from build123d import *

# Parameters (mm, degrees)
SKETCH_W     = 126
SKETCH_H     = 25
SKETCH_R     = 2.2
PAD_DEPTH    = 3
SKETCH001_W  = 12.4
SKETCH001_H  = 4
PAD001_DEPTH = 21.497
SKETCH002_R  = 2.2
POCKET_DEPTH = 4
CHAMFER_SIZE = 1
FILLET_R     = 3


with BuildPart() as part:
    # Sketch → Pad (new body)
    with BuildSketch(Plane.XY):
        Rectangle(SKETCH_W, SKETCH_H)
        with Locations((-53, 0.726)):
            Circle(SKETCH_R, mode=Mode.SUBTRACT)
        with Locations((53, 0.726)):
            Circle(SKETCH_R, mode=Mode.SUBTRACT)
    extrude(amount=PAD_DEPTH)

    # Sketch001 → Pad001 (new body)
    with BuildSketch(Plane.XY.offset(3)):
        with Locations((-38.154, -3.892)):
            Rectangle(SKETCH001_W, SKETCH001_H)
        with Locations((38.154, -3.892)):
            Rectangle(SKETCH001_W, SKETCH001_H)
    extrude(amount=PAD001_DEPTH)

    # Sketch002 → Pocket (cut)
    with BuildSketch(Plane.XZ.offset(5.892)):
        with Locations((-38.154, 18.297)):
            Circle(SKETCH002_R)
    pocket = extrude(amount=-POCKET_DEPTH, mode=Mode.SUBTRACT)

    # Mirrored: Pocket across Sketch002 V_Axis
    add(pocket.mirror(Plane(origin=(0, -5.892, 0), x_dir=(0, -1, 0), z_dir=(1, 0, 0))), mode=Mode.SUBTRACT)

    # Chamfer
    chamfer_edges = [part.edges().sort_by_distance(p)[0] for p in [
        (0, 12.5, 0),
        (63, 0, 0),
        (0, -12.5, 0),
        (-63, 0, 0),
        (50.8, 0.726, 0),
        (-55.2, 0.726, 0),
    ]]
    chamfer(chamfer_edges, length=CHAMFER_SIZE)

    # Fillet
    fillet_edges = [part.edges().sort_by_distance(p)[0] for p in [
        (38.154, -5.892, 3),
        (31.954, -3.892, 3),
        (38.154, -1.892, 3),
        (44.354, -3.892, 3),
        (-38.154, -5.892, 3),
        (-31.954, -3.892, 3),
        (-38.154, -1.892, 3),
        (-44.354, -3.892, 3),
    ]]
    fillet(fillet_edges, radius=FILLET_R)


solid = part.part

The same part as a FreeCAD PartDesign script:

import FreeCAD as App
import Part
import Sketcher

V = App.Vector
Q = App.Units.Quantity


def edges_at(feature, points):
    """Names of the edges that pass closest to the given points."""
    edges = feature.Shape.Edges
    near = lambda p: min(range(len(edges)), key=lambda i: edges[i].distToShape(Part.Vertex(*p))[0])
    return sorted({f"Edge{near(p) + 1}" for p in points})


def add_polygon(sketch, points):
    """Adds a closed chain of lines whose ends are joined by coincident constraints."""
    first, n = sketch.GeometryCount, len(points)
    for a, b in zip(points, points[1:] + points[:1]):
        sketch.addGeometry(Part.LineSegment(App.Vector(*a, 0), App.Vector(*b, 0)), False)
    for i in range(n):
        sketch.addConstraint(Sketcher.Constraint("Coincident", first + i, 2, first + (i + 1) % n, 1))

doc = App.newDocument("Part")
body = doc.addObject("PartDesign::Body", "Body")

# Sketch on XY plane
sketch1 = body.newObject("Sketcher::SketchObject", "Sketch")
sketch1.AttachmentSupport = (doc.getObject("XY_Plane"), [""])
sketch1.MapMode = "FlatFace"
add_polygon(sketch1, [(-63, 12.5), (-63, -12.5), (63, -12.5), (63, 12.5)])  # lines 0-3
sketch1.addGeometry(Part.Circle(V(-53, 0.726, 0), V(0, 0, 1), 2.2), False)  # 4
sketch1.addGeometry(Part.Circle(V(53, 0.726, 0), V(0, 0, 1), 2.2), False)  # 5
sketch1.addConstraint(Sketcher.Constraint("Vertical", 0))
sketch1.addConstraint(Sketcher.Constraint("Horizontal", 1))
sketch1.addConstraint(Sketcher.Constraint("Vertical", 2))
sketch1.addConstraint(Sketcher.Constraint("Horizontal", 3))
sketch1.addConstraint(Sketcher.Constraint("Equal", 4, 5))
sketch1.addConstraint(Sketcher.Constraint("Symmetric", 0, 2, 2, 2, -1, 1))
sketch1.addConstraint(Sketcher.Constraint("Symmetric", 4, 3, 5, 3, -2))
sketch1.addConstraint(Sketcher.Constraint("Diameter", 4, Q("4.4 mm")))
sketch1.addConstraint(Sketcher.Constraint("DistanceX", 1, 1, 1, 2, Q("126 mm")))
sketch1.addConstraint(Sketcher.Constraint("DistanceY", 0, 2, 0, 1, Q("25 mm")))
sketch1.addConstraint(Sketcher.Constraint("DistanceX", 4, 3, -1, 1, Q("53 mm")))
sketch1.addConstraint(Sketcher.Constraint("DistanceY", -1, 1, 4, 3, Q("0.726 mm")))
pad1 = body.newObject("PartDesign::Pad", "Pad")
pad1.Profile = sketch1
pad1.Length = 3

# Sketch on XY plane
sketch2 = body.newObject("Sketcher::SketchObject", "Sketch001")
sketch2.AttachmentSupport = (doc.getObject("XY_Plane"), [""])
sketch2.MapMode = "FlatFace"
sketch2.AttachmentOffset = App.Placement(V(0, 0, 3), App.Rotation())
add_polygon(sketch2, [(-44.354, -1.892), (-44.354, -5.892), (-31.954, -5.892), (-31.954, -1.892)])  # lines 0-3
add_polygon(sketch2, [(31.954, -1.892), (31.954, -5.892), (44.354, -5.892), (44.354, -1.892)])  # lines 4-7
sketch2.addConstraint(Sketcher.Constraint("Vertical", 0))
sketch2.addConstraint(Sketcher.Constraint("Horizontal", 1))
sketch2.addConstraint(Sketcher.Constraint("Vertical", 2))
sketch2.addConstraint(Sketcher.Constraint("Horizontal", 3))
sketch2.addConstraint(Sketcher.Constraint("Vertical", 4))
sketch2.addConstraint(Sketcher.Constraint("Horizontal", 5))
sketch2.addConstraint(Sketcher.Constraint("Vertical", 6))
sketch2.addConstraint(Sketcher.Constraint("Horizontal", 7))
sketch2.addConstraint(Sketcher.Constraint("Symmetric", 1, 2, 4, 2, -2))
sketch2.addConstraint(Sketcher.Constraint("Symmetric", 3, 2, 6, 2, -2))
sketch2.addConstraint(Sketcher.Constraint("DistanceY", 0, 2, 0, 1, Q("4 mm")))
sketch2.addConstraint(Sketcher.Constraint("DistanceX", 1, 1, 1, 2, Q("12.4 mm")))
sketch2.addConstraint(Sketcher.Constraint("DistanceX", 0, 2, -1, 1, Q("44.354 mm")))
sketch2.addConstraint(Sketcher.Constraint("DistanceY", 0, 2, -1, 1, Q("5.892 mm")))
pad2 = body.newObject("PartDesign::Pad", "Pad001")
pad2.Profile = sketch2
pad2.Length = 21.497

# Sketch on XZ plane
sketch3 = body.newObject("Sketcher::SketchObject", "Sketch002")
sketch3.AttachmentSupport = (doc.getObject("XZ_Plane"), [""])
sketch3.MapMode = "FlatFace"
sketch3.AttachmentOffset = App.Placement(V(0, 0, 5.892), App.Rotation())
sketch3.addGeometry(Part.Circle(V(-38.154, 18.297, 0), V(0, 0, 1), 2.2), False)
sketch3.addConstraint(Sketcher.Constraint("Diameter", 0, Q("4.4 mm")))
sketch3.addConstraint(Sketcher.Constraint("DistanceX", 0, 3, -1, 1, Q("38.154 mm")))
sketch3.addConstraint(Sketcher.Constraint("DistanceY", -1, 1, 0, 3, Q("18.297 mm")))
pocket1 = body.newObject("PartDesign::Pocket", "Pocket")
pocket1.Profile = sketch3
pocket1.Length = 4
doc.recompute()

mirrored = body.newObject("PartDesign::Mirrored", "Mirrored")
mirrored.Originals = [pocket1]
mirrored.MirrorPlane = (doc.getObject("YZ_Plane"), [""])
body.Tip = mirrored
doc.recompute()

chamfer = body.newObject("PartDesign::Chamfer", "Chamfer")
chamfer.Base = (mirrored, edges_at(mirrored, [
    (0, 12.5, 0),
    (63, 0, 0),
    (0, -12.5, 0),
    (-63, 0, 0),
    (50.8, 0.726, 0),
    (-55.2, 0.726, 0),
]))
chamfer.Size = 1
doc.recompute()

fillet = body.newObject("PartDesign::Fillet", "Fillet")
fillet.Base = (chamfer, edges_at(chamfer, [
    (38.154, -5.892, 3),
    (31.954, -3.892, 3),
    (38.154, -1.892, 3),
    (44.354, -3.892, 3),
    (-38.154, -5.892, 3),
    (-31.954, -3.892, 3),
    (-38.154, -1.892, 3),
    (-44.354, -3.892, 3),
]))
fillet.Radius = 3

doc.recompute()
